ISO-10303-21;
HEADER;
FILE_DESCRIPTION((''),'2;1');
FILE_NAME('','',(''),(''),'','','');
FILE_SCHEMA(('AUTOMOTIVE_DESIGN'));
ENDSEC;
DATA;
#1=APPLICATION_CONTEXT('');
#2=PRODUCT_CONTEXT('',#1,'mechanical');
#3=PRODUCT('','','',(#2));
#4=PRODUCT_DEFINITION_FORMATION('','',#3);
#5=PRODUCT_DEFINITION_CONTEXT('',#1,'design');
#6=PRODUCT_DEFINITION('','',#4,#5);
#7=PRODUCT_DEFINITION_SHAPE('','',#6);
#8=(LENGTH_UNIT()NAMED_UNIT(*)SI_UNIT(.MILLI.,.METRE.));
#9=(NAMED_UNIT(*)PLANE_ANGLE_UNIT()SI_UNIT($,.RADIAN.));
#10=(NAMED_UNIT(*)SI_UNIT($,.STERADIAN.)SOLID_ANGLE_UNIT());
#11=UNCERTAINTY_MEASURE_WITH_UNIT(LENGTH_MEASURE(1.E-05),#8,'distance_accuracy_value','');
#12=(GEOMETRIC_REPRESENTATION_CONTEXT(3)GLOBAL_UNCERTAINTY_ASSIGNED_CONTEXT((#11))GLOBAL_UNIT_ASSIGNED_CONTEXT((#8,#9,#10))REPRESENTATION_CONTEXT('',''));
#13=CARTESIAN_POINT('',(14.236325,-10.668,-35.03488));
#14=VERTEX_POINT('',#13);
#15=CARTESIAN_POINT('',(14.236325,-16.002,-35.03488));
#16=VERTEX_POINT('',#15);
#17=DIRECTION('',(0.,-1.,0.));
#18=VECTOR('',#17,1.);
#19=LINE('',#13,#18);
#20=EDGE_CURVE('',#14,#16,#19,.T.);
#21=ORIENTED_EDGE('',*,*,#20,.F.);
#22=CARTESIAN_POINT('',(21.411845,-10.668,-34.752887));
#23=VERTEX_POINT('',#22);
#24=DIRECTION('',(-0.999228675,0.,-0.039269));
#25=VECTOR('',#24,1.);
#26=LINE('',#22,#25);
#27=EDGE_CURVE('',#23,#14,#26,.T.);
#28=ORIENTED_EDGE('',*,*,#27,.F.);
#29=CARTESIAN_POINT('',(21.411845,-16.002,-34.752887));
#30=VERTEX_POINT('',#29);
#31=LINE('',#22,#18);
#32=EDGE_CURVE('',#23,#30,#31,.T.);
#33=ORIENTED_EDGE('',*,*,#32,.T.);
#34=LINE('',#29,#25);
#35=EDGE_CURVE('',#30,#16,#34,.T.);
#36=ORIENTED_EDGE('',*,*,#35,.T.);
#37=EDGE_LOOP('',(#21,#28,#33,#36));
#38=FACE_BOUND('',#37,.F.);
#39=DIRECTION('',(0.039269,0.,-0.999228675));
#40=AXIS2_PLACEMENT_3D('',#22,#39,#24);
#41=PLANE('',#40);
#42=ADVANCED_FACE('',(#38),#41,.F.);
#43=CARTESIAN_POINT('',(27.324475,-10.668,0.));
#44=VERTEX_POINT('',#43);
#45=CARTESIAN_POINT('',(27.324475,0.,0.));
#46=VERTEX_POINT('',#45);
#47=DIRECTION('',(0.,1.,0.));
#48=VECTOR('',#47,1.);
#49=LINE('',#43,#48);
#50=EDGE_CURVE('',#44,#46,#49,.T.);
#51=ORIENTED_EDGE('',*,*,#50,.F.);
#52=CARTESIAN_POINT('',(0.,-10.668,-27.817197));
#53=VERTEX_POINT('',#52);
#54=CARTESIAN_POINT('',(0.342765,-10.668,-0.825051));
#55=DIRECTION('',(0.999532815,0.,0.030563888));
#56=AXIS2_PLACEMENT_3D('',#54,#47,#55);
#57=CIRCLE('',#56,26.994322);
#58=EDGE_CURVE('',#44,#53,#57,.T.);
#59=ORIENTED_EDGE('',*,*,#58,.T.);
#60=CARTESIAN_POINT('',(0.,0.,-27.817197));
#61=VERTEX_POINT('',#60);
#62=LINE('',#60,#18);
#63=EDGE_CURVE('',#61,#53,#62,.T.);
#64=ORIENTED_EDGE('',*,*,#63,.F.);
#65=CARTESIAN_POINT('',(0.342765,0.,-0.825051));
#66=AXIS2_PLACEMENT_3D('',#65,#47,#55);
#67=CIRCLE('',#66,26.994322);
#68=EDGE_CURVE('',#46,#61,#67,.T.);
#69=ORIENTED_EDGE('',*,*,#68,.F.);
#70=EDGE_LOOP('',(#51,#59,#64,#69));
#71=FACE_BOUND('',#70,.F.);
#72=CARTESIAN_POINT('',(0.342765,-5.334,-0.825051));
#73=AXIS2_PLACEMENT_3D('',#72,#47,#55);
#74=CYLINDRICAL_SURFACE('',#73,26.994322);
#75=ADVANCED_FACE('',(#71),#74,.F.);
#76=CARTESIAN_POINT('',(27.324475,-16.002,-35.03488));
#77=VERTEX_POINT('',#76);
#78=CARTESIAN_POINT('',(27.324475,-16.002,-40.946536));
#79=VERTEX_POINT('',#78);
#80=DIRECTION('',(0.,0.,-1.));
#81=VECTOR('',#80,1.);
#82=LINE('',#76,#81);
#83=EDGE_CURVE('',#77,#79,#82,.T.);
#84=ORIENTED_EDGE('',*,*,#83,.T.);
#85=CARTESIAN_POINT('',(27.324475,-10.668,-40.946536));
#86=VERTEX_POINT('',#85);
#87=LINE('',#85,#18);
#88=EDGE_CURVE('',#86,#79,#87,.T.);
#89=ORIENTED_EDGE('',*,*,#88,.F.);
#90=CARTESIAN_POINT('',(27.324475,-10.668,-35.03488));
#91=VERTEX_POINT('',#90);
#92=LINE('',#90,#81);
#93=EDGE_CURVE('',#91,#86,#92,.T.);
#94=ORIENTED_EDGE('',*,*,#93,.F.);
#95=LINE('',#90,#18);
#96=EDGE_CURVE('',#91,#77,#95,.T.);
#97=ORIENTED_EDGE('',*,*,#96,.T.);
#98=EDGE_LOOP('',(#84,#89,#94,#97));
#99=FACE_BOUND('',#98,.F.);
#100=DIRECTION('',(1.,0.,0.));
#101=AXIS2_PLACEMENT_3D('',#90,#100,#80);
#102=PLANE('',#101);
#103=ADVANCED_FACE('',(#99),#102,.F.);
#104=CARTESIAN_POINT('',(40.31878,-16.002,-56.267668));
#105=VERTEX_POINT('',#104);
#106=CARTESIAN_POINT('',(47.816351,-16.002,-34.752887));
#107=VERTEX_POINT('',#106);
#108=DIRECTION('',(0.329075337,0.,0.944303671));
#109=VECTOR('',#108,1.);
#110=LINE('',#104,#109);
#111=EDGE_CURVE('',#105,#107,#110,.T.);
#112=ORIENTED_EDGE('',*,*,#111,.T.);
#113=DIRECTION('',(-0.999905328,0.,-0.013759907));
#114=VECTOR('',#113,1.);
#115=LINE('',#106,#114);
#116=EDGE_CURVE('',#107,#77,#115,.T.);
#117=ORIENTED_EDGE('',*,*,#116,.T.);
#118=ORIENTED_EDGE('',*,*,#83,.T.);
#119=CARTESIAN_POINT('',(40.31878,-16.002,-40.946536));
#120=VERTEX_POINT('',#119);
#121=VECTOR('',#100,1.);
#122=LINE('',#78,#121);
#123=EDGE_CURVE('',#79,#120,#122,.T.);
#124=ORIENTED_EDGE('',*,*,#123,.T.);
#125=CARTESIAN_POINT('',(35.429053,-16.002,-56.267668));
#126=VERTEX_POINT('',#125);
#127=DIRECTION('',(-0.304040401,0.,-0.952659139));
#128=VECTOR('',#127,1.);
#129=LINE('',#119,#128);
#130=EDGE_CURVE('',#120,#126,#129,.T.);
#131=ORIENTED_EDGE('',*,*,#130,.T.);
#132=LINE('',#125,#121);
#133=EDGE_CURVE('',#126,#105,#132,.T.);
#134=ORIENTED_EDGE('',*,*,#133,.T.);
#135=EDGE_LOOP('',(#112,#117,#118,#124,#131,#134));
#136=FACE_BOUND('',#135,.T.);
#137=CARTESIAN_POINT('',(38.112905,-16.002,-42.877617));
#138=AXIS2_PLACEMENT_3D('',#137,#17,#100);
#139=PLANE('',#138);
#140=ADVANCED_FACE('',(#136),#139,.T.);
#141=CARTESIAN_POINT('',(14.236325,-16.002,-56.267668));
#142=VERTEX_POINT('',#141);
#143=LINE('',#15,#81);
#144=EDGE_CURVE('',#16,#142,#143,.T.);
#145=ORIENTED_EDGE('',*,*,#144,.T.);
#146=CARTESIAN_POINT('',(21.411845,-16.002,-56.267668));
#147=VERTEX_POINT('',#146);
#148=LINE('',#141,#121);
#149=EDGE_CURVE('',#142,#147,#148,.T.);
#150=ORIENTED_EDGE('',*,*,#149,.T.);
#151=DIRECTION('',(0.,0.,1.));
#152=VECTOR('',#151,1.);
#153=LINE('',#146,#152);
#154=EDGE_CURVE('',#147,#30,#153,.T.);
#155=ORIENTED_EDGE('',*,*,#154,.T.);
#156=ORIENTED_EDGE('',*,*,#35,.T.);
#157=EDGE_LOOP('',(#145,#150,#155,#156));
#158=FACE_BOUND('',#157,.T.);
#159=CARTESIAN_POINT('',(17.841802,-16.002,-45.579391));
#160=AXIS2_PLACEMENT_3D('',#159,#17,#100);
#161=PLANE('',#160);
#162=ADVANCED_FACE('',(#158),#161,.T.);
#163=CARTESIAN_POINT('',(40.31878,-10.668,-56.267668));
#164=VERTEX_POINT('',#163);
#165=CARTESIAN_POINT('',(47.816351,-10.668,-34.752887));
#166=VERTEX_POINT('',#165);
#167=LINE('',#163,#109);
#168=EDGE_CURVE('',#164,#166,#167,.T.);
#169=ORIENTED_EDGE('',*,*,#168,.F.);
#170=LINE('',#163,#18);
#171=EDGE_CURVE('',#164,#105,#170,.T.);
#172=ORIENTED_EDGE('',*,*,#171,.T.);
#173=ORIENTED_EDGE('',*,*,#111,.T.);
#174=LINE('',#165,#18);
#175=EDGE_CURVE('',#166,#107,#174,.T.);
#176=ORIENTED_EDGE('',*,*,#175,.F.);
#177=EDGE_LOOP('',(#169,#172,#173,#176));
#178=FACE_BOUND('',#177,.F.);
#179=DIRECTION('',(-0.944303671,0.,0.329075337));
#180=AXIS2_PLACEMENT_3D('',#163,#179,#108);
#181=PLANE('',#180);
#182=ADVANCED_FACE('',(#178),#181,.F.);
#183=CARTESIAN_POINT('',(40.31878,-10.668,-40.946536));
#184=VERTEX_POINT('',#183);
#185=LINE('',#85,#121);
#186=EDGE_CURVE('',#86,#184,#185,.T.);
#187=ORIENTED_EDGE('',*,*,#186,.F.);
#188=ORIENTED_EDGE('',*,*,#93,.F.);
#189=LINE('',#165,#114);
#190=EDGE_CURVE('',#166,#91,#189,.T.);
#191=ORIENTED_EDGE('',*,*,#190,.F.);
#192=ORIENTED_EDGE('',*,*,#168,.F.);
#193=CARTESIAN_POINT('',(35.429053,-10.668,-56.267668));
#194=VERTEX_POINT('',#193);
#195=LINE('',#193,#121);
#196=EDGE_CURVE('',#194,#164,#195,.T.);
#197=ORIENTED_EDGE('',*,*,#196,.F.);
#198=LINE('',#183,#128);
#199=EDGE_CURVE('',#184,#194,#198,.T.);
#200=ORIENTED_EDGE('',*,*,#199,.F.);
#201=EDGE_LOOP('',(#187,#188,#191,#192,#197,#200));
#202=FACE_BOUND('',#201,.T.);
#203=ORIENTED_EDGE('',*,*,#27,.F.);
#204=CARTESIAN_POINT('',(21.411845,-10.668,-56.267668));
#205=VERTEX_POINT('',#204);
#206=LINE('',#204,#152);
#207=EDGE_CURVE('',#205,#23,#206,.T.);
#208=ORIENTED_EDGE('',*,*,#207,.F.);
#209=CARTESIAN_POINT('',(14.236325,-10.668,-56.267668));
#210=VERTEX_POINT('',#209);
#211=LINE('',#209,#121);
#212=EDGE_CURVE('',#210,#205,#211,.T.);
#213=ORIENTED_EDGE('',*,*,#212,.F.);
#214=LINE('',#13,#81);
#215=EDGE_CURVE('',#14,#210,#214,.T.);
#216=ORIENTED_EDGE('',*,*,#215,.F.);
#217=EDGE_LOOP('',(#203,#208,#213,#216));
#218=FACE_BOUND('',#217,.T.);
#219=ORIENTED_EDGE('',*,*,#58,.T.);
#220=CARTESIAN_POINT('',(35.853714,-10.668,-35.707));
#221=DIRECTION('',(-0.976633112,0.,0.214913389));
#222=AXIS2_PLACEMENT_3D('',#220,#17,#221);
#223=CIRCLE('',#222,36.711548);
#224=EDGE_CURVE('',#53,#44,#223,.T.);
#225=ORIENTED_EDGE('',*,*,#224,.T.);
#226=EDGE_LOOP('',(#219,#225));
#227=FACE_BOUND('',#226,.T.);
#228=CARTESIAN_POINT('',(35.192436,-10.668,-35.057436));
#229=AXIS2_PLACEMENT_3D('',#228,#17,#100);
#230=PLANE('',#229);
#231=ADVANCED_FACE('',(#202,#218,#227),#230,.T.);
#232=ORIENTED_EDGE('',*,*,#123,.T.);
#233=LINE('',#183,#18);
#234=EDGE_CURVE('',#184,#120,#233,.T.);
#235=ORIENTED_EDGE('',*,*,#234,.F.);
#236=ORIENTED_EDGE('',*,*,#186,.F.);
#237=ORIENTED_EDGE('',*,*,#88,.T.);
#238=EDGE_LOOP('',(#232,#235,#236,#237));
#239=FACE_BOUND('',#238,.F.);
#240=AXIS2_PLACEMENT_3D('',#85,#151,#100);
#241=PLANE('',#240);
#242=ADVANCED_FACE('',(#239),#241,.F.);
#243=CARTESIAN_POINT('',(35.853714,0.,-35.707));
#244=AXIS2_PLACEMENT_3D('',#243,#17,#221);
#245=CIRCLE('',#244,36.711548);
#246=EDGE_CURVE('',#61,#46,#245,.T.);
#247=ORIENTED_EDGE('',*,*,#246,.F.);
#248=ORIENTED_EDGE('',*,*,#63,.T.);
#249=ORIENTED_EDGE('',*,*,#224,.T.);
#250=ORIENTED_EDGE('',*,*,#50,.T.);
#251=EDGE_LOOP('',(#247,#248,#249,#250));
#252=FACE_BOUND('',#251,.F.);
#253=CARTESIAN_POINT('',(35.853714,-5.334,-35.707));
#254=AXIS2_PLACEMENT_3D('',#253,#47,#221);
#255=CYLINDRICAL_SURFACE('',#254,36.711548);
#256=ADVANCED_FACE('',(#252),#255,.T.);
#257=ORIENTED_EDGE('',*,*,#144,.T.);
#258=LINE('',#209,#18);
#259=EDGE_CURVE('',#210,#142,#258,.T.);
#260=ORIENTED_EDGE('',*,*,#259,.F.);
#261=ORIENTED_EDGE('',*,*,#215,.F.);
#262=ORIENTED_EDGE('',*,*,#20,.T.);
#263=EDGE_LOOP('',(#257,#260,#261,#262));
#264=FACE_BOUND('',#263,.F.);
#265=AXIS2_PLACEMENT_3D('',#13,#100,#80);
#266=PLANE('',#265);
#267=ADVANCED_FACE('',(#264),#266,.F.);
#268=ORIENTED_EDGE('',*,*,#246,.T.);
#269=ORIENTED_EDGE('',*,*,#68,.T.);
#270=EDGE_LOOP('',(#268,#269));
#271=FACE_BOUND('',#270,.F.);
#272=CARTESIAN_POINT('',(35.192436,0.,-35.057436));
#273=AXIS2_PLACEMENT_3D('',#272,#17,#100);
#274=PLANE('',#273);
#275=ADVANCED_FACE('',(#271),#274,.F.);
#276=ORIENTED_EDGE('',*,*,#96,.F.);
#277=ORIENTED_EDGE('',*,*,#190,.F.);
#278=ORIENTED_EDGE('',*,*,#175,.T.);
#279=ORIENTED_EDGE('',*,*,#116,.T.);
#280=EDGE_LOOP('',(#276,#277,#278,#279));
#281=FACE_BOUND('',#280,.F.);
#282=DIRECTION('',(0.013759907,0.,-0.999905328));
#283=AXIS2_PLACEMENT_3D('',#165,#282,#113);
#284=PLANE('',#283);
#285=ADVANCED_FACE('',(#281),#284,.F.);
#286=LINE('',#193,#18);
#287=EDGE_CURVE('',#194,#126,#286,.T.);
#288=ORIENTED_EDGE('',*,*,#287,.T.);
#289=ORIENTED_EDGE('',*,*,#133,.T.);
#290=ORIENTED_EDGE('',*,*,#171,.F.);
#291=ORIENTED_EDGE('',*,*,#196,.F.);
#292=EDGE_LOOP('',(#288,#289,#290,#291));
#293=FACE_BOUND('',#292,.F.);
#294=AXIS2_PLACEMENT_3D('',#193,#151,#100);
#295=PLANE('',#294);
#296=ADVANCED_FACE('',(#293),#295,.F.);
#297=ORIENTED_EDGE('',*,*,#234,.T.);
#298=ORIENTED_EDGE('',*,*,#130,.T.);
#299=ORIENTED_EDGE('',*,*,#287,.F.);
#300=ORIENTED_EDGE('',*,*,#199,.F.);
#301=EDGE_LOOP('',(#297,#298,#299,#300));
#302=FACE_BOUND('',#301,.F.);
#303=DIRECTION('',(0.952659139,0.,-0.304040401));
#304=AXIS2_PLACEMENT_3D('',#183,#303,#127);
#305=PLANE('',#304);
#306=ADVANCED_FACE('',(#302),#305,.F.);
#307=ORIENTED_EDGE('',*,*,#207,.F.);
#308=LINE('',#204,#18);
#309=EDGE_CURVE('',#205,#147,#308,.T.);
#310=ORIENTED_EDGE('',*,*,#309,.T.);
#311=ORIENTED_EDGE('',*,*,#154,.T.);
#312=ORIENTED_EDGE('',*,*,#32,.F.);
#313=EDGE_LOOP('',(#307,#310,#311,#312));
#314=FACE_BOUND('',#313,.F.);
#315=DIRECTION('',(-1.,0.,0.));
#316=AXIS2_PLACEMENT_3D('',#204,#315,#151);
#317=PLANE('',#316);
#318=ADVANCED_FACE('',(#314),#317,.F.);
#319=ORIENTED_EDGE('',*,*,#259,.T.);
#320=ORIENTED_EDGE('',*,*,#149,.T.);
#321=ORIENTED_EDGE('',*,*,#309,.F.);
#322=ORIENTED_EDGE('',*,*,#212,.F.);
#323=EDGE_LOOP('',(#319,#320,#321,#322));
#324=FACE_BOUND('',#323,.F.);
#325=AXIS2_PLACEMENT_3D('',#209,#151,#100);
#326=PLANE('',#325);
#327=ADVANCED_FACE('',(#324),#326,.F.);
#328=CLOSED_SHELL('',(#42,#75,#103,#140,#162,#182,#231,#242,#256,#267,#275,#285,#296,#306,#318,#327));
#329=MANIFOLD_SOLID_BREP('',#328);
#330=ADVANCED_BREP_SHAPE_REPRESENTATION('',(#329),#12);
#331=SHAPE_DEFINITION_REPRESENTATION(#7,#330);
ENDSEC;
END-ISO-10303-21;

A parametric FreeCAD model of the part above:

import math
import FreeCAD as App
import Part
import Sketcher

V = App.Vector
Q = App.Units.Quantity


def add_polygon(sketch, points):
    """Adds a closed chain of lines whose ends are joined by coincident constraints."""
    first, n = sketch.GeometryCount, len(points)
    for a, b in zip(points, points[1:] + points[:1]):
        sketch.addGeometry(Part.LineSegment(App.Vector(*a, 0), App.Vector(*b, 0)), False)
    for i in range(n):
        sketch.addConstraint(Sketcher.Constraint("Coincident", first + i, 2, first + (i + 1) % n, 1))

doc = App.newDocument("Part")
body = doc.addObject("PartDesign::Body", "Body")

# Sketch on XZ plane
sketch1 = doc.addObject("Sketcher::SketchObject", "Sketch")
body.addObject(sketch1)
sketch1.AttachmentSupport = (doc.XZ_Plane, [""])
sketch1.MapMode = "FlatFace"
sketch1.addGeometry([
    Part.ArcOfCircle(Part.Circle(V(0, -1, 0), V(0, 0, 1), 27), math.radians(-91), math.radians(2)),
    Part.ArcOfCircle(Part.Circle(V(36, -36, 0), V(0, 0, 1), 37), math.radians(168), math.radians(463)),
], False)
sketch1.addConstraint([
    Sketcher.Constraint("Coincident", 0, 1, 1, 1),
    Sketcher.Constraint("Coincident", 1, 2, 0, 2),
    Sketcher.Constraint("PointOnObject", 0, 1, -2),
    Sketcher.Constraint("PointOnObject", 1, 2, -1),
    Sketcher.Constraint("Radius", 0, Q("26.994322 mm")),
    Sketcher.Constraint("Radius", 1, Q("36.711548 mm")),
    Sketcher.Constraint("DistanceY", 1, 3, -1, 1, Q("35.707 mm")),
    Sketcher.Constraint("DistanceY", 0, 3, -1, 1, Q("0.825051 mm")),
])
pad1 = doc.addObject("PartDesign::Pad", "Pad")
body.addObject(pad1)
pad1.Profile = sketch1
pad1.Length = Q("0.21 in")

# Sketch on XZ plane
sketch2 = doc.addObject("Sketcher::SketchObject", "Sketch001")
body.addObject(sketch2)
sketch2.AttachmentSupport = (doc.XZ_Plane, [""])
sketch2.MapMode = "FlatFace"
sketch2.AttachmentOffset = App.Placement(V(0, 0, 0.21 * 25.4), App.Rotation())
sketch2.addGeometry([
    Part.ArcOfCircle(Part.Circle(V(0, -1, 0), V(0, 0, 1), 27), math.radians(-91), math.radians(2)),
    Part.ArcOfCircle(Part.Circle(V(36, -36, 0), V(0, 0, 1), 37), math.radians(168), math.radians(463)),
], False)
sketch2.addConstraint([
    Sketcher.Constraint("Coincident", 0, 1, 1, 1),
    Sketcher.Constraint("Coincident", 1, 2, 0, 2),
    Sketcher.Constraint("PointOnObject", 0, 1, -2),
    Sketcher.Constraint("PointOnObject", 1, 2, -1),
    Sketcher.Constraint("Radius", 0, Q("26.994322 mm")),
    Sketcher.Constraint("Radius", 1, Q("36.711548 mm")),
    Sketcher.Constraint("DistanceY", 1, 3, -1, 1, Q("35.707 mm")),
    Sketcher.Constraint("DistanceY", 0, 3, -1, 1, Q("0.825051 mm")),
])
pad2 = doc.addObject("PartDesign::Pad", "Pad001")
body.addObject(pad2)
pad2.Profile = sketch2
pad2.Length = Q("0.21 in")

# Sketch on XZ plane
sketch3 = doc.addObject("Sketcher::SketchObject", "Sketch002")
body.addObject(sketch3)
sketch3.AttachmentSupport = (doc.XZ_Plane, [""])
sketch3.MapMode = "FlatFace"
sketch3.AttachmentOffset = App.Placement(V(0, 0, 0.42 * 25.4), App.Rotation())
add_polygon(sketch3, [(47.8, -34.8), (27.3, -35), (27.3, -40.9), (40.3, -40.9), (35.4, -56.3), (40.3, -56.3)])  # lines 0-5
add_polygon(sketch3, [(21.4, -34.8), (14.2, -35), (14.2, -56.3), (21.4, -56.3)])  # lines 6-9
sketch3.addConstraint([
    Sketcher.Constraint("Vertical", 1),
    Sketcher.Constraint("Horizontal", 2),
    Sketcher.Constraint("Horizontal", 4),
    Sketcher.Constraint("Vertical", 7),
    Sketcher.Constraint("Horizontal", 8),
    Sketcher.Constraint("Vertical", 9),
    Sketcher.Constraint("Horizontal", 0, 2, 6, 2),
    Sketcher.Constraint("Horizontal", 4, 2, 7, 2),
    Sketcher.Constraint("Horizontal", 5, 2, 9, 2),
    Sketcher.Constraint("Vertical", 2, 2, 4, 2),
    Sketcher.Constraint("DistanceX", 8, 1, 8, 2, Q("7.17552 mm")),
    Sketcher.Constraint("DistanceY", 9, 1, 9, 2, Q("21.514781 mm")),
    Sketcher.Constraint("Distance", 3, Q("16.082491 mm")),
    Sketcher.Constraint("Distance", 6, Q("7.181059 mm")),
    Sketcher.Constraint("DistanceX", 2, 1, 2, 2, Q("12.994305 mm")),
    Sketcher.Constraint("DistanceX", 4, 1, 4, 2, Q("4.889727 mm")),
    Sketcher.Constraint("DistanceY", 0, 2, -1, 1, Q("35.03488 mm")),
    Sketcher.Constraint("DistanceX", -1, 1, 2, 2, Q("40.31878 mm")),
    Sketcher.Constraint("DistanceX", -1, 1, 5, 2, Q("47.816351 mm")),
    Sketcher.Constraint("DistanceX", 6, 2, 0, 2, Q("13.08815 mm")),
])
pad3 = doc.addObject("PartDesign::Pad", "Pad002")
body.addObject(pad3)
pad3.Profile = sketch3
pad3.Length = Q("0.21 in")

doc.recompute()
